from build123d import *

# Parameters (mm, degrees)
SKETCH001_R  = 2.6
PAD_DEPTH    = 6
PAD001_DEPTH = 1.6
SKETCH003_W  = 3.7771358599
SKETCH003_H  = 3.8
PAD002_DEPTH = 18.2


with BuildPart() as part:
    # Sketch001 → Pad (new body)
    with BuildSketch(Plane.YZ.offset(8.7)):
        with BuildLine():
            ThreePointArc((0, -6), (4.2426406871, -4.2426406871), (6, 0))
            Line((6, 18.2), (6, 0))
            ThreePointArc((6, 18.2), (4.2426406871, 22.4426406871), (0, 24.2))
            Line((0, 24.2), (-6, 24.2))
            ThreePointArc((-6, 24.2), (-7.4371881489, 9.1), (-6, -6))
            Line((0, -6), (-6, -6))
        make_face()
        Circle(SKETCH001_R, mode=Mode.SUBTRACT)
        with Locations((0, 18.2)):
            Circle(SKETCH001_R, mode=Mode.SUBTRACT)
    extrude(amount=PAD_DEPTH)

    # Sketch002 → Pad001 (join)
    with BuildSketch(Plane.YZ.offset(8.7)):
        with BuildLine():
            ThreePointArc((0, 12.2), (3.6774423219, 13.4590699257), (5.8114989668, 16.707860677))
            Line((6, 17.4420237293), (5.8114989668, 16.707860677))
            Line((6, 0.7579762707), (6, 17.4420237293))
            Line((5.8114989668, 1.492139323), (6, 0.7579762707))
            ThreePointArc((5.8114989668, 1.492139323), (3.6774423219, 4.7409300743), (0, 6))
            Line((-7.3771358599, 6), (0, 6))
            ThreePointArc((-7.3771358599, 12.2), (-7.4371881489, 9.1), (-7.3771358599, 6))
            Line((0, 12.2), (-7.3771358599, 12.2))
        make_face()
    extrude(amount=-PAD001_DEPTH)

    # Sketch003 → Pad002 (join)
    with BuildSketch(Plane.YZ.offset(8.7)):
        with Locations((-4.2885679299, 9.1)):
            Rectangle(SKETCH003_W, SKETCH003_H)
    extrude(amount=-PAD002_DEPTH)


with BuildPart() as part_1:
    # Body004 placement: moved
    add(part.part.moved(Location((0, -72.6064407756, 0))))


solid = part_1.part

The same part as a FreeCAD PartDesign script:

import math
import FreeCAD as App
import Part
import Sketcher

V = App.Vector
Q = App.Units.Quantity


def add_polygon(sketch, points):
    """Adds a closed chain of lines whose ends are joined by coincident constraints."""
    first, n = sketch.GeometryCount, len(points)
    for a, b in zip(points, points[1:] + points[:1]):
        sketch.addGeometry(Part.LineSegment(App.Vector(*a, 0), App.Vector(*b, 0)), False)
    for i in range(n):
        sketch.addConstraint(Sketcher.Constraint("Coincident", first + i, 2, first + (i + 1) % n, 1))

doc = App.newDocument("Part")
body = doc.addObject("PartDesign::Body", "Body")

sketch1 = body.newObject("Sketcher::SketchObject", "Sketch")
sketch1.AttachmentSupport = (doc.getObject("YZ_Plane"), [""])
sketch1.MapMode = "FlatFace"
sketch1.AttachmentOffset = App.Placement(V(0, 0, 8.7), App.Rotation())
sketch1.addGeometry([
    Part.ArcOfCircle(Part.Circle(V(0, 0, 0), V(0, 0, 1), 6), math.radians(-90), math.radians(0)),
    Part.LineSegment(V(6, 0, 0), V(6, 18.2, 0)),
    Part.ArcOfCircle(Part.Circle(V(0, 18.2, 0), V(0, 0, 1), 6), math.radians(0), math.radians(90)),
    Part.LineSegment(V(0, 24.2, 0), V(-6, 24.2, 0)),
    Part.ArcOfCircle(Part.Circle(V(72.6, 9.1, 0), V(0, 0, 1), 80), math.radians(169), math.radians(191)),
    Part.LineSegment(V(-6, -6, 0), V(0, -6, 0)),
    Part.Circle(V(0, 0, 0), V(0, 0, 1), 2.6),
    Part.Circle(V(0, 18.2, 0), V(0, 0, 1), 2.6),
], False)
sketch1.addConstraint([
    Sketcher.Constraint("Tangent", 0, 2, 1, 1),
    Sketcher.Constraint("Tangent", 1, 2, 2, 1),
    Sketcher.Constraint("Tangent", 2, 2, 3, 1),
    Sketcher.Constraint("Coincident", 3, 2, 4, 1),
    Sketcher.Constraint("Coincident", 4, 2, 5, 1),
    Sketcher.Constraint("Tangent", 5, 2, 0, 1),
    Sketcher.Constraint("Vertical", 1),
    Sketcher.Constraint("Horizontal", 3),
    Sketcher.Constraint("Horizontal", 5),
    Sketcher.Constraint("Coincident", 0, 3, -1, 1),
    Sketcher.Constraint("Coincident", 6, 3, -1, 1),
    Sketcher.Constraint("Coincident", 7, 3, 2, 3),
    Sketcher.Constraint("Equal", 0, 2),
    Sketcher.Constraint("Equal", 6, 7),
    Sketcher.Constraint("Vertical", 3, 2, 4, 2),
    Sketcher.Constraint("Radius", 0, Q("6 mm")),
    Sketcher.Constraint("Diameter", 6, Q("5.2 mm")),
    Sketcher.Constraint("DistanceX", 3, 2, 3, 1, Q("6 mm")),
    Sketcher.Constraint("DistanceY", 1, 1, 1, 2, Q("18.2 mm")),
    Sketcher.Constraint("Radius", 4, Q("80.043629 mm")),
])
pad1 = body.newObject("PartDesign::Pad", "Pad")
pad1.Profile = sketch1
pad1.Length = 6

sketch2 = body.newObject("Sketcher::SketchObject", "Sketch001")
sketch2.AttachmentSupport = (doc.getObject("YZ_Plane"), [""])
sketch2.MapMode = "FlatFace"
sketch2.AttachmentOffset = App.Placement(V(0, 0, 8.7), App.Rotation())
sketch2.addGeometry([
    Part.ArcOfCircle(Part.Circle(V(0, 18.2, 0), V(0, 0, 1), 6), math.radians(-90), math.radians(-14)),
    Part.LineSegment(V(0, 12.2, 0), V(-7.4, 12.2, 0)),
    Part.ArcOfCircle(Part.Circle(V(72.6, 9.1, 0), V(0, 0, 1), 80), math.radians(177.78), math.radians(182.22)),
    Part.LineSegment(V(-7.4, 6, 0), V(0, 6, 0)),
    Part.ArcOfCircle(Part.Circle(V(0, 0, 0), V(0, 0, 1), 6), math.radians(14), math.radians(90)),
    Part.LineSegment(V(5.8, 1.5, 0), V(6, 0.8, 0)),
    Part.LineSegment(V(6, 0.8, 0), V(6, 17.4, 0)),
    Part.LineSegment(V(6, 17.4, 0), V(5.8, 16.7, 0)),
], False)
sketch2.addConstraint([
    Sketcher.Constraint("Tangent", 0, 1, 1, 1),
    Sketcher.Constraint("Coincident", 1, 2, 2, 1),
    Sketcher.Constraint("Coincident", 2, 2, 3, 1),
    Sketcher.Constraint("Tangent", 3, 2, 4, 2),
    Sketcher.Constraint("Tangent", 4, 1, 5, 1),
    Sketcher.Constraint("Coincident", 5, 2, 6, 1),
    Sketcher.Constraint("Coincident", 6, 2, 7, 1),
    Sketcher.Constraint("Tangent", 7, 2, 0, 2),
    Sketcher.Constraint("Horizontal", 1),
    Sketcher.Constraint("Horizontal", 3),
    Sketcher.Constraint("Vertical", 6),
    Sketcher.Constraint("Coincident", 4, 3, -1, 1),
    Sketcher.Constraint("Equal", 0, 4),
    Sketcher.Constraint("PointOnObject", 0, 3, -2),
    Sketcher.Constraint("Vertical", 1, 2, 2, 2),
    Sketcher.Constraint("Vertical", 4, 1, 7, 2),
    Sketcher.Constraint("Radius", 0, Q("6 mm")),
    Sketcher.Constraint("DistanceX", -1, 1, 5, 2, Q("6 mm")),
    Sketcher.Constraint("Angle", 5, Q("-75.6 deg")),
    Sketcher.Constraint("DistanceY", -1, 1, 0, 3, Q("18.2 mm")),
    Sketcher.Constraint("Radius", 2, Q("80.043629 mm")),
    Sketcher.Constraint("DistanceX", 1, 2, 1, 1, Q("7.377136 mm")),
])
pad2 = body.newObject("PartDesign::Pad", "Pad001")
pad2.Profile = sketch2
pad2.Length = 1.6
pad2.Reversed = True

sketch3 = body.newObject("Sketcher::SketchObject", "Sketch002")
sketch3.AttachmentSupport = (doc.getObject("YZ_Plane"), [""])
sketch3.MapMode = "FlatFace"
sketch3.AttachmentOffset = App.Placement(V(0, 0, 8.7), App.Rotation())
add_polygon(sketch3, [(-6.2, 11), (-6.2, 7.2), (-2.4, 7.2), (-2.4, 11)])
sketch3.addConstraint([
    Sketcher.Constraint("Vertical", 0),
    Sketcher.Constraint("Horizontal", 1),
    Sketcher.Constraint("Vertical", 2),
    Sketcher.Constraint("Horizontal", 3),
    Sketcher.Constraint("DistanceY", 0, 2, 0, 1, Q("3.8 mm")),
    Sketcher.Constraint("DistanceY", -1, 1, 2, 2, Q("11 mm")),
    Sketcher.Constraint("DistanceX", 1, 2, -1, 1, Q("2.4 mm")),
    Sketcher.Constraint("DistanceX", 1, 1, 1, 2, Q("3.777136 mm")),
])
pad3 = body.newObject("PartDesign::Pad", "Pad002")
pad3.Profile = sketch3
pad3.Length = 18.2
pad3.Reversed = True
body2 = doc.addObject("PartDesign::Body", "Body001")
doc.recompute()

body.Placement = App.Placement(V(0, -72.606441, 0), App.Rotation(V(0, 0, 1), 0))
boolean = body2.newObject("PartDesign::Boolean", "Boolean")
boolean.Type = "Fuse"
boolean.addObjects([body])

doc.recompute()
